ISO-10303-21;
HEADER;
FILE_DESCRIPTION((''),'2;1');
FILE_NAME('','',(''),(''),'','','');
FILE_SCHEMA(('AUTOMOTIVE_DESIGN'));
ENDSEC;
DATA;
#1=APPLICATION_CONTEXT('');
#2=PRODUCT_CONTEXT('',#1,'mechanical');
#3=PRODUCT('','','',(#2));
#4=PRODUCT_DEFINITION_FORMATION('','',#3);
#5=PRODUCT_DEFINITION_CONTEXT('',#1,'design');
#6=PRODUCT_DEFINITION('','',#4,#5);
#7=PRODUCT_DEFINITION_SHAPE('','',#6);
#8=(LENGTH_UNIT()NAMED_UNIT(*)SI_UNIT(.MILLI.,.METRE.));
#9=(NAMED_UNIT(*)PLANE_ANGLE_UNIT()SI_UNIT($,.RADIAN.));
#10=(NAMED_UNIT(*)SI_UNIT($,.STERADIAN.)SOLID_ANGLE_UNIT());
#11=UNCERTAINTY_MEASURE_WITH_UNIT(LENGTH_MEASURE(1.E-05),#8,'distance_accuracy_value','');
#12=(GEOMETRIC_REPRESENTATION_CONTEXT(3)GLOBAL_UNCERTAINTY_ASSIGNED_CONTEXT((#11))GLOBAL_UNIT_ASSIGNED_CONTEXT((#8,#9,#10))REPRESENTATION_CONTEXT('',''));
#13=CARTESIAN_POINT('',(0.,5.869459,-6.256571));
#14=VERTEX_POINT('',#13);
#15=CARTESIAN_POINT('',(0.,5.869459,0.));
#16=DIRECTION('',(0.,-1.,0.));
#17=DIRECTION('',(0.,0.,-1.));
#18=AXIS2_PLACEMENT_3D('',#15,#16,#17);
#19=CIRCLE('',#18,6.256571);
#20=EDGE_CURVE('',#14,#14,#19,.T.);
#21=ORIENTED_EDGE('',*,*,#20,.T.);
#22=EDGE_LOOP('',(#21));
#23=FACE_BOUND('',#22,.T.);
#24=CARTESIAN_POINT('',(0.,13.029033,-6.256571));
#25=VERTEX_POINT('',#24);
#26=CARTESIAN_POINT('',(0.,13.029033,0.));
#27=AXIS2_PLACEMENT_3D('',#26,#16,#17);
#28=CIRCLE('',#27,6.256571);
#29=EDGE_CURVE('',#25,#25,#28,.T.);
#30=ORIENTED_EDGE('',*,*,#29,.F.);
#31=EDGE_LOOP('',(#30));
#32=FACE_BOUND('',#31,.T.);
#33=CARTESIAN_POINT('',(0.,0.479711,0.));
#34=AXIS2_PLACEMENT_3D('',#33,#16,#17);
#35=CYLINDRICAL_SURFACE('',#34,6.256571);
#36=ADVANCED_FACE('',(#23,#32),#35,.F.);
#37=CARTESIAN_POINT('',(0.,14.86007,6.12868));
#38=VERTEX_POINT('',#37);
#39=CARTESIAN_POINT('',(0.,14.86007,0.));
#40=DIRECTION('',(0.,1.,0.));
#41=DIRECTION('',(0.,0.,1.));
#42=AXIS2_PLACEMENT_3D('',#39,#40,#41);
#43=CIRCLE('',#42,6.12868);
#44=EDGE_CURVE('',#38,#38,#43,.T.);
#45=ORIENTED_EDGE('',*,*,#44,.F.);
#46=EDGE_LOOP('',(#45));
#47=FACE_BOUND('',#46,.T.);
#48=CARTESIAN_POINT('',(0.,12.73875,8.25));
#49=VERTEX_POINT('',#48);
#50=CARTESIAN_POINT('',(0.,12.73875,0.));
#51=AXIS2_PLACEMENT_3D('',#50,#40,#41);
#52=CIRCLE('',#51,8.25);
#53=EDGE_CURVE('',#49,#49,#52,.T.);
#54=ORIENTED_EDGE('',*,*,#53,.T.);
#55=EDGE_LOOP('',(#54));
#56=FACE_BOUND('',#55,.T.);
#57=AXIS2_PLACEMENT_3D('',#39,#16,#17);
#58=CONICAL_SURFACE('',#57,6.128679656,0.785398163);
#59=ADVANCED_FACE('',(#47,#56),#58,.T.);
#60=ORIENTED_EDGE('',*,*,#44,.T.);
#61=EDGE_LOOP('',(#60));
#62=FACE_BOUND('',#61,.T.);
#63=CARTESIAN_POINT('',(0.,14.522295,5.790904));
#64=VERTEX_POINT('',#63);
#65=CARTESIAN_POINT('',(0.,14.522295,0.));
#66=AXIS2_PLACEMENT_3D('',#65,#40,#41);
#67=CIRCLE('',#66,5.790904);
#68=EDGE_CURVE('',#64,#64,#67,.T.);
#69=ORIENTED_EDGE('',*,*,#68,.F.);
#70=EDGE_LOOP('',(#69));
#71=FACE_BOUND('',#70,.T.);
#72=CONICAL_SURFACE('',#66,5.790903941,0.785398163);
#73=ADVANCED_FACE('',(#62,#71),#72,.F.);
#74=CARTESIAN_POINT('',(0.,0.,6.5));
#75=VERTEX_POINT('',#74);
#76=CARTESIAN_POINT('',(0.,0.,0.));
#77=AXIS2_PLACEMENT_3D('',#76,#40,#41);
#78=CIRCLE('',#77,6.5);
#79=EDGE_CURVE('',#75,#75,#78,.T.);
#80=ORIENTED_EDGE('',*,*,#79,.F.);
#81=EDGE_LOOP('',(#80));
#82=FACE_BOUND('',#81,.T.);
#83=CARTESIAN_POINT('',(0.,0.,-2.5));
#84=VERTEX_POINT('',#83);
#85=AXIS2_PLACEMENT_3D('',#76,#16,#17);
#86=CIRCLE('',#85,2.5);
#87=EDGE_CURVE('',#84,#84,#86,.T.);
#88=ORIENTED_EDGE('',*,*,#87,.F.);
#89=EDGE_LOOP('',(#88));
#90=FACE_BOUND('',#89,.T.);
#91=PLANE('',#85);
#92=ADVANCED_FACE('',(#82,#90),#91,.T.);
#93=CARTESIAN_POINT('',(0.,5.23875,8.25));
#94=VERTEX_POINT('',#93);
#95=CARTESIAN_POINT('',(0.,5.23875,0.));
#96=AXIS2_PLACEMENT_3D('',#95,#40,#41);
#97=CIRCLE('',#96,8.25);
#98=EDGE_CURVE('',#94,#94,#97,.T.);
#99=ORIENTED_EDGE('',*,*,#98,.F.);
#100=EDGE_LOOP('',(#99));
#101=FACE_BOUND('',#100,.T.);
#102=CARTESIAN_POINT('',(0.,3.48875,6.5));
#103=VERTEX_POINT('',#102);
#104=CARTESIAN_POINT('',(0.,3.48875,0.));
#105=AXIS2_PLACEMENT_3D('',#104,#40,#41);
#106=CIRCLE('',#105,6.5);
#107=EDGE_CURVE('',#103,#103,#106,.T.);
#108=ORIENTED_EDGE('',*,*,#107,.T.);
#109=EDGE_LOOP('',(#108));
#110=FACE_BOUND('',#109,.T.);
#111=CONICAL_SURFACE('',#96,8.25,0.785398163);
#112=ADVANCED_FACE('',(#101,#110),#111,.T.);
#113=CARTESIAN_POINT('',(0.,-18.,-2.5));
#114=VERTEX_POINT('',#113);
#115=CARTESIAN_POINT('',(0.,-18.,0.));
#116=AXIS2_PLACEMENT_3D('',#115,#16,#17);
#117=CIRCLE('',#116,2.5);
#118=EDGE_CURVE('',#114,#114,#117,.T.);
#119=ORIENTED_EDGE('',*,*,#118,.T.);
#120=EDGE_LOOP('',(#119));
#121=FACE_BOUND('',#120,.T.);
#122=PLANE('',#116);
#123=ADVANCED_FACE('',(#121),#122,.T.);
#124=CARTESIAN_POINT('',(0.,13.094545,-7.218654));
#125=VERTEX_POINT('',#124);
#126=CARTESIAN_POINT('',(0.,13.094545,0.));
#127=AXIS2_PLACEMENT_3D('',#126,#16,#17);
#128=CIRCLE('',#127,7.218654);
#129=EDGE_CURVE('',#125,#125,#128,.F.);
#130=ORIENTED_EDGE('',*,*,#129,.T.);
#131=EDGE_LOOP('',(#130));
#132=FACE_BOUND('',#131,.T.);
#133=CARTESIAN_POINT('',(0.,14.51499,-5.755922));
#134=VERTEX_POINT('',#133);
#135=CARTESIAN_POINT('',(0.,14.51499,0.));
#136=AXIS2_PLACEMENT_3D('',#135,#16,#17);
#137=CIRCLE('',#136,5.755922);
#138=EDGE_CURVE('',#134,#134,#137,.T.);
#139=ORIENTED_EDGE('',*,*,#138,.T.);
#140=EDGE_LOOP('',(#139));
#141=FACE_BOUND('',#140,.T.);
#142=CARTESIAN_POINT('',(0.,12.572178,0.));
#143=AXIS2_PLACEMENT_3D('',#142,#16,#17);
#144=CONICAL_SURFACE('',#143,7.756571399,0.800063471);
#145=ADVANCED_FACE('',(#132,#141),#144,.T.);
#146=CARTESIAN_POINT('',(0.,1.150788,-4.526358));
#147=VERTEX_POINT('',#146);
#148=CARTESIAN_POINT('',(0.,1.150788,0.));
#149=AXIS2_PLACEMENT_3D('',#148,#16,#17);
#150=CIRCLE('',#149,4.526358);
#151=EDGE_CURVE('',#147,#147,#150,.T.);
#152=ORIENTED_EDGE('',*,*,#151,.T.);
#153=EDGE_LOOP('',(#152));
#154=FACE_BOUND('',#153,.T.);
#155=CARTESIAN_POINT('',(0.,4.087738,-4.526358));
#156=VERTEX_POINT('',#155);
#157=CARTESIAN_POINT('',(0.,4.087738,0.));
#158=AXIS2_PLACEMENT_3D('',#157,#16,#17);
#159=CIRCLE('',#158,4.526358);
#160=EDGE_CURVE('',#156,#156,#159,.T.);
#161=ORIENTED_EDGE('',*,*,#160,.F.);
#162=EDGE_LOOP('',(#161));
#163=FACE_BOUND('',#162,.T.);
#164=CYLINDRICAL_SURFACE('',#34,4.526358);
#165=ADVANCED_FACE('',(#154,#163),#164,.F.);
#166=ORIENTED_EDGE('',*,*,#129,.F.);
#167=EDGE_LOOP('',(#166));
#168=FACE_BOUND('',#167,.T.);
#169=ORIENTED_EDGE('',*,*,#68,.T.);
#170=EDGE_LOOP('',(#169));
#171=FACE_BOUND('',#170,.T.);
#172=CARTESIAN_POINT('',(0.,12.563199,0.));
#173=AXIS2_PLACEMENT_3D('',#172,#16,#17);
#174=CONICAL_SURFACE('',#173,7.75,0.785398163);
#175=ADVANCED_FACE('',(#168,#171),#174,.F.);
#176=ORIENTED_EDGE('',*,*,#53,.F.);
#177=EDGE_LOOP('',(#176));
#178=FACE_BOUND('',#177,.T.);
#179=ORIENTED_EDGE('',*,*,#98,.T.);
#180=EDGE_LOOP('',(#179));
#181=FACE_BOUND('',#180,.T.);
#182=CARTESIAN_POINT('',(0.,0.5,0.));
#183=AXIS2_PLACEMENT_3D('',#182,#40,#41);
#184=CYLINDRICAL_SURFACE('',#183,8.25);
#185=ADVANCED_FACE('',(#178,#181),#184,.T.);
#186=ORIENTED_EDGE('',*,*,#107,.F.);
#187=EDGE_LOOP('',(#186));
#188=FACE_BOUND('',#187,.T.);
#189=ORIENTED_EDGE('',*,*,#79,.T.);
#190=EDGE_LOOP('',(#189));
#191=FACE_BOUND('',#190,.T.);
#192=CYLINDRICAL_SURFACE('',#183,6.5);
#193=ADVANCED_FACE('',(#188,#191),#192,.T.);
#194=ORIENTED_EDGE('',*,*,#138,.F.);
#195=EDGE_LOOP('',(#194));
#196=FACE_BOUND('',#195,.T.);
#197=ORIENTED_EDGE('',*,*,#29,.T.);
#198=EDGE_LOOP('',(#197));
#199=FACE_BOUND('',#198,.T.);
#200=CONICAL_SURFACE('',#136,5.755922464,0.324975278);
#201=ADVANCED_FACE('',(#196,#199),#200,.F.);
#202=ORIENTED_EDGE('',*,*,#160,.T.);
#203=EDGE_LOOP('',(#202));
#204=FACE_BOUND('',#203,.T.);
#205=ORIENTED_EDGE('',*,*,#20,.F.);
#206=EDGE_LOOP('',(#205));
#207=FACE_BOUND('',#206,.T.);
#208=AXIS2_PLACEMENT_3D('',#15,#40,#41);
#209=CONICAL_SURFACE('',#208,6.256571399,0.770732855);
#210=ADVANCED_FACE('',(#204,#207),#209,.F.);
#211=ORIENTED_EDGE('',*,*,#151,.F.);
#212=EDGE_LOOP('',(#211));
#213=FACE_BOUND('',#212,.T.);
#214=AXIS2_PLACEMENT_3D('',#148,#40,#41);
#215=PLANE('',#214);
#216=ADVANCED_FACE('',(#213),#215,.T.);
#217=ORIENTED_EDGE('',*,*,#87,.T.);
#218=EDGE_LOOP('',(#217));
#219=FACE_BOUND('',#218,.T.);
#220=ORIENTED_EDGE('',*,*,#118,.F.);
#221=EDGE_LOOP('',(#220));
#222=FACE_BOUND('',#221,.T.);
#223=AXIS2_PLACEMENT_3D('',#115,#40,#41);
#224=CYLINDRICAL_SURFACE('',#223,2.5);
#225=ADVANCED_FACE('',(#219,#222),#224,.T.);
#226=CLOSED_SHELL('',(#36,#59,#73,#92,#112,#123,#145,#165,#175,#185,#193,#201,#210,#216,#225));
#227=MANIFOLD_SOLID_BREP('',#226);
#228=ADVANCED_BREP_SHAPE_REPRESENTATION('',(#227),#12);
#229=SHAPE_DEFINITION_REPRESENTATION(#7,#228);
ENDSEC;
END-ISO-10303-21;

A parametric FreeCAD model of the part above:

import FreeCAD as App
import Part
import Sketcher
from FreeCAD import Vector
Q = App.Units.Quantity


def add_polygon(sketch, points):
    """Adds a closed chain of lines whose ends are joined by coincident constraints."""
    first, n = sketch.GeometryCount, len(points)
    for a, b in zip(points, points[1:] + points[:1]):
        sketch.addGeometry(Part.LineSegment(App.Vector(*a, 0), App.Vector(*b, 0)), False)
    for i in range(n):
        sketch.addConstraint(Sketcher.Constraint("Coincident", first + i, 2, first + (i + 1) % n, 1))

doc = App.newDocument("Part")
body = doc.addObject("PartDesign::Body", "Body")

# Sketch on XY plane
sketch1 = body.newObject("Sketcher::SketchObject", "Sketch")
sketch1.AttachmentSupport = (doc.getObject("XY_Plane"), [""])
sketch1.MapMode = "FlatFace"
add_polygon(sketch1, [(-6.5, 0), (0, 0), (0, 0.5), (-6, 0.5), (-6, 3.81), (-7.75, 5.56), (-7.75, 12.56), (-5.79, 14.52), (-6.13, 14.86), (-8.25, 12.74), (-8.25, 5.24), (-6.5, 3.49)])  # lines 0-11
sketch1.addConstraint([
    Sketcher.Constraint("Horizontal", 0),
    Sketcher.Constraint("Vertical", 1),
    Sketcher.Constraint("Horizontal", 2),
    Sketcher.Constraint("Vertical", 3),
    Sketcher.Constraint("Vertical", 5),
    Sketcher.Constraint("Vertical", 9),
    Sketcher.Constraint("Vertical", 11),
    Sketcher.Constraint("Coincident", 0, 2, -1, 1),
    Sketcher.Constraint("Perpendicular", 4, 6),
    Sketcher.Constraint("Perpendicular", 6, 7),
    Sketcher.Constraint("Perpendicular", 7, 8),
    Sketcher.Constraint("Perpendicular", 8, 10),
    Sketcher.Constraint("Equal", 4, 10),
    Sketcher.Constraint("DistanceX", 2, 2, 2, 1, 6.0),
    Sketcher.Constraint("DistanceY", 5, 1, 5, 2, 7.0),
    Sketcher.Constraint("Angle", 4, Q("135 deg")),
    Sketcher.Constraint("Distance", 8, 3.0),
    Sketcher.Constraint("DistanceX", 0, 1, 0, 2, 6.5),
    Sketcher.Constraint("DistanceY", 1, 1, 1, 2, 0.5),
    Sketcher.Constraint("DistanceY", 9, 2, 9, 1, 7.5),
    Sketcher.Constraint("DistanceX", 4, 2, -1, 1, 7.75),
    Sketcher.Constraint("DistanceY", 3, 1, 3, 2, 3.313199),
    Sketcher.Constraint("DistanceY", 11, 2, 11, 1, 3.48875),
])
revolution = body.newObject("PartDesign::Revolution", "Revolution")
revolution.Profile = sketch1
revolution.ReferenceAxis = (sketch1, ["V_Axis"])
revolution.Angle = 360

# Sketch on XZ plane
sketch2 = body.newObject("Sketcher::SketchObject", "Sketch001")
sketch2.AttachmentSupport = (doc.getObject("XZ_Plane"), [""])
sketch2.MapMode = "FlatFace"
sketch2.addGeometry(Part.Circle(Vector(0, 0, 0), Vector(0, 0, 1), 2.5), False)
sketch2.addConstraint([
    Sketcher.Constraint("Coincident", 0, 3, -1, 1),
    Sketcher.Constraint("Diameter", 0, 5.0),
])
pad1 = body.newObject("PartDesign::Pad", "Pad")
pad1.Profile = sketch2
pad1.Length = 18

# Sketch on XY plane
sketch3 = body.newObject("Sketcher::SketchObject", "Sketch002")
sketch3.AttachmentSupport = (doc.getObject("XY_Plane"), [""])
sketch3.MapMode = "FlatFace"
add_polygon(sketch3, [(7.8, 5.5), (7.8, 12.6), (5.8, 14.5), (6.3, 13), (6.3, 5.9), (4.5, 4.1), (4.5, 1.2), (0, 1.2), (0, 0.5), (6, 0.5), (6, 3.8)])  # lines 0-10
sketch3.addConstraint([
    Sketcher.Constraint("Vertical", 0),
    Sketcher.Constraint("Vertical", 3),
    Sketcher.Constraint("Vertical", 5),
    Sketcher.Constraint("Horizontal", 6),
    Sketcher.Constraint("Vertical", 7),
    Sketcher.Constraint("Horizontal", 8),
    Sketcher.Constraint("Vertical", 9),
    Sketcher.Constraint("PointOnObject", 6, 2, -2),
    Sketcher.Constraint("Perpendicular", 1, 4),
    Sketcher.Constraint("Parallel", 4, 10),
    Sketcher.Constraint("DistanceX", 2, 2, 0, 2, 1.5),
    Sketcher.Constraint("DistanceX", 6, 2, 6, 1, 4.526358),
    Sketcher.Constraint("DistanceY", 5, 2, 5, 1, 2.93695),
    Sketcher.Constraint("DistanceY", 9, 1, 9, 2, 3.28237),
    Sketcher.Constraint("Distance", 1, 2.788748),
    Sketcher.Constraint("Distance", 2, 1.56803),
    Sketcher.Constraint("Distance", 4, 2.483579),
    Sketcher.Constraint("Distance", 10, 2.459829),
    Sketcher.Constraint("DistanceY", 0, 1, 0, 2, 7.045414),
    Sketcher.Constraint("DistanceY", 3, 2, 3, 1, 7.159575),
    Sketcher.Constraint("DistanceY", 7, 2, 7, 1, 0.671076),
    Sketcher.Constraint("DistanceY", -1, 1, 1, 2, 14.51499),
])
revolution2 = body.newObject("PartDesign::Revolution", "Revolution001")
revolution2.Profile = sketch3
revolution2.ReferenceAxis = (sketch3, ["V_Axis"])
revolution2.Angle = 360

doc.recompute()
